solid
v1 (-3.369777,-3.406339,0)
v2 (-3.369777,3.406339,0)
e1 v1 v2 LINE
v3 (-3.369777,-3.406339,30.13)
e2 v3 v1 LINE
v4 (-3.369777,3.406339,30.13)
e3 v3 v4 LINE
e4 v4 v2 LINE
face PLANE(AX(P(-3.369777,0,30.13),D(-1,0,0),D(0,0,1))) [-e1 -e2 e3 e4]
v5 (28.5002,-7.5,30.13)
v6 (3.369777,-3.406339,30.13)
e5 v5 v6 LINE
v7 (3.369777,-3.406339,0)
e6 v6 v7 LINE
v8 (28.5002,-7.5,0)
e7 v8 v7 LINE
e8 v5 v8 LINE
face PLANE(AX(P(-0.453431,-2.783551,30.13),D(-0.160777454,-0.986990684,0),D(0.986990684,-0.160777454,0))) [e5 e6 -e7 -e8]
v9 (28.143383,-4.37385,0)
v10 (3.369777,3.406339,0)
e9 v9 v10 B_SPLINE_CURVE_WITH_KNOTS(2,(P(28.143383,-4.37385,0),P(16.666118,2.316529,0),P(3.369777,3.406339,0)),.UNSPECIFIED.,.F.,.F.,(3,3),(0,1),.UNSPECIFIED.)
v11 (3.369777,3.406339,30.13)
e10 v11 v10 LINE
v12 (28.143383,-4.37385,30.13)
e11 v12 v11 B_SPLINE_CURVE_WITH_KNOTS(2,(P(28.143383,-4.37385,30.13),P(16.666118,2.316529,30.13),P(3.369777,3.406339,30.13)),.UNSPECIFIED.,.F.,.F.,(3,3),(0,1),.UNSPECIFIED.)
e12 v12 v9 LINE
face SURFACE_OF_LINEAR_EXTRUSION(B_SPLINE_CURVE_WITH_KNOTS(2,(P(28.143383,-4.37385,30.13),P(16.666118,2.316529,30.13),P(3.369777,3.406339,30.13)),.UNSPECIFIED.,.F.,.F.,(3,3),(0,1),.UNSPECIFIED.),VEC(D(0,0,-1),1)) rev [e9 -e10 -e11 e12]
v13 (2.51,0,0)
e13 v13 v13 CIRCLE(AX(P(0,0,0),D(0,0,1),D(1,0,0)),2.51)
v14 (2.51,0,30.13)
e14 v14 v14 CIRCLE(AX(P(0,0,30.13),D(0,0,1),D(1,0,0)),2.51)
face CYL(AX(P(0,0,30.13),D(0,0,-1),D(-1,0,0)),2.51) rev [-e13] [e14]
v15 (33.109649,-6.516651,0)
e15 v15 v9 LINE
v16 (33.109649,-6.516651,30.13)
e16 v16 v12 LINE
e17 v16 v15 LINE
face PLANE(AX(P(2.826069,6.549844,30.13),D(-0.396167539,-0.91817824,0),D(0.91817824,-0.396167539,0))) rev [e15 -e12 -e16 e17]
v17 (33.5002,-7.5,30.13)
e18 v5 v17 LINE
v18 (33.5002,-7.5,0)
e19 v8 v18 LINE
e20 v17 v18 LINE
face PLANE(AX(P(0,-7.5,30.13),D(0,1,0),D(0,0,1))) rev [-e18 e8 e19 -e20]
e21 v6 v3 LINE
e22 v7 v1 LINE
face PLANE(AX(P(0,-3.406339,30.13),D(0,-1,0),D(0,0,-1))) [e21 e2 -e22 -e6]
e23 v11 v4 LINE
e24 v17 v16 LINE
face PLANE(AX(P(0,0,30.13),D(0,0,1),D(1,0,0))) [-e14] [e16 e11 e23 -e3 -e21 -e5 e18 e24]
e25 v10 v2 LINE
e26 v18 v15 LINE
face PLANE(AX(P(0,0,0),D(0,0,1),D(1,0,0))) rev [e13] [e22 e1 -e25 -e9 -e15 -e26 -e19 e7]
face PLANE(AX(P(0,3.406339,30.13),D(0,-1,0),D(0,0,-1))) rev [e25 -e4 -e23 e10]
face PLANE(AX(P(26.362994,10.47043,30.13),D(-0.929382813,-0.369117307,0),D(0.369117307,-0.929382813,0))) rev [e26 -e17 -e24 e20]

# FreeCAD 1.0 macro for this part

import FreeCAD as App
import Part
import Sketcher
Q = App.Units.Quantity

doc = App.newDocument("Part")
params = doc.addObject("Spreadsheet::Sheet", "Params")
for row, (alias, value) in enumerate([
    ("sketch1_diameter", "5.02 mm"),
    ("sketch1_width", "5 mm"),
    ("pad1_length", "30.13 mm"),
], start=1):
    params.set(f"A{row}", alias)
    params.set(f"B{row}", "=" + value)
    params.setAlias(f"B{row}", alias)

body = doc.addObject("PartDesign::Body", "Body")

# Sketch on XY plane
sketch1 = doc.addObject("Sketcher::SketchObject", "Sketch")
body.addObject(sketch1)
sketch1.AttachmentSupport = (doc.XY_Plane, [""])
sketch1.MapMode = "FlatFace"
sketch1.addGeometry(Part.LineSegment(App.Vector(-3.369777, 3.406339, 0), App.Vector(-3.369777, -3.406339, 0)), False)
sketch1.addGeometry(Part.LineSegment(App.Vector(-3.369777, -3.406339, 0), App.Vector(3.369777, -3.406339, 0)), False)
sketch1.addGeometry(Part.BSplineCurve([App.Vector(28.5002, -7.5, 0), App.Vector(3.369777, -3.406339, 0)], [2, 2], [0, 1], False, 1, [1, 1], False), False)
sketch1.addGeometry(Part.LineSegment(App.Vector(28.5002, -7.5, 0), App.Vector(33.5002, -7.5, 0)), False)
sketch1.addGeometry(Part.LineSegment(App.Vector(33.5002, -7.5, 0), App.Vector(33.109649, -6.516651, 0)), False)
sketch1.addGeometry(Part.LineSegment(App.Vector(33.109649, -6.516651, 0), App.Vector(28.143383, -4.37385, 0)), False)
sketch1.addGeometry(Part.BSplineCurve([App.Vector(28.143383, -4.37385, 0), App.Vector(16.666118, 2.316529, 0), App.Vector(3.369777, 3.406339, 0)], [3, 3], [0, 1], False, 2, [1, 1, 1], False), False)
sketch1.addGeometry(Part.LineSegment(App.Vector(3.369777, 3.406339, 0), App.Vector(-3.369777, 3.406339, 0)), False)
sketch1.addGeometry(Part.Circle(App.Vector(0, 0, 0), App.Vector(0, 0, 1), 2.51), False)
sketch1.addConstraint(Sketcher.Constraint("Block", 2))
sketch1.addConstraint(Sketcher.Constraint("Block", 6))
sketch1.addConstraint(Sketcher.Constraint("Coincident", 0, 2, 1, 1))
sketch1.addConstraint(Sketcher.Constraint("Coincident", 1, 2, 2, 2))
sketch1.addConstraint(Sketcher.Constraint("Coincident", 2, 1, 3, 1))
sketch1.addConstraint(Sketcher.Constraint("Coincident", 3, 2, 4, 1))
sketch1.addConstraint(Sketcher.Constraint("Coincident", 4, 2, 5, 1))
sketch1.addConstraint(Sketcher.Constraint("Coincident", 5, 2, 6, 1))
sketch1.addConstraint(Sketcher.Constraint("Coincident", 6, 2, 7, 1))
sketch1.addConstraint(Sketcher.Constraint("Coincident", 7, 2, 0, 1))
sketch1.addConstraint(Sketcher.Constraint("Vertical", 0))
sketch1.addConstraint(Sketcher.Constraint("Horizontal", 1))
sketch1.addConstraint(Sketcher.Constraint("Horizontal", 3))
sketch1.addConstraint(Sketcher.Constraint("Horizontal", 7))
sketch1.addConstraint(Sketcher.Constraint("Coincident", 8, 3, -1, 1))
sketch1.addConstraint(Sketcher.Constraint("Diameter", 8, Q("5.02 mm")))
sketch1.addConstraint(Sketcher.Constraint("DistanceX", 3, 1, 3, 2, Q("5 mm")))
sketch1.addConstraint(Sketcher.Constraint("DistanceY", 4, 2, 5, 2, Q("2.142801 mm")))
sketch1.addConstraint(Sketcher.Constraint("DistanceX", 1, 1, 1, 2, Q("6.739554 mm")))
sketch1.addConstraint(Sketcher.Constraint("DistanceX", -1, 1, 4, 2, Q("33.109649 mm")))
sketch1.setExpression("Constraints[15]", "Params.sketch1_diameter")
sketch1.setExpression("Constraints[16]", "Params.sketch1_width")
pad1 = doc.addObject("PartDesign::Pad", "Pad")
body.addObject(pad1)
pad1.Profile = sketch1
pad1.setExpression("Length", "Params.pad1_length")

doc.recompute()
